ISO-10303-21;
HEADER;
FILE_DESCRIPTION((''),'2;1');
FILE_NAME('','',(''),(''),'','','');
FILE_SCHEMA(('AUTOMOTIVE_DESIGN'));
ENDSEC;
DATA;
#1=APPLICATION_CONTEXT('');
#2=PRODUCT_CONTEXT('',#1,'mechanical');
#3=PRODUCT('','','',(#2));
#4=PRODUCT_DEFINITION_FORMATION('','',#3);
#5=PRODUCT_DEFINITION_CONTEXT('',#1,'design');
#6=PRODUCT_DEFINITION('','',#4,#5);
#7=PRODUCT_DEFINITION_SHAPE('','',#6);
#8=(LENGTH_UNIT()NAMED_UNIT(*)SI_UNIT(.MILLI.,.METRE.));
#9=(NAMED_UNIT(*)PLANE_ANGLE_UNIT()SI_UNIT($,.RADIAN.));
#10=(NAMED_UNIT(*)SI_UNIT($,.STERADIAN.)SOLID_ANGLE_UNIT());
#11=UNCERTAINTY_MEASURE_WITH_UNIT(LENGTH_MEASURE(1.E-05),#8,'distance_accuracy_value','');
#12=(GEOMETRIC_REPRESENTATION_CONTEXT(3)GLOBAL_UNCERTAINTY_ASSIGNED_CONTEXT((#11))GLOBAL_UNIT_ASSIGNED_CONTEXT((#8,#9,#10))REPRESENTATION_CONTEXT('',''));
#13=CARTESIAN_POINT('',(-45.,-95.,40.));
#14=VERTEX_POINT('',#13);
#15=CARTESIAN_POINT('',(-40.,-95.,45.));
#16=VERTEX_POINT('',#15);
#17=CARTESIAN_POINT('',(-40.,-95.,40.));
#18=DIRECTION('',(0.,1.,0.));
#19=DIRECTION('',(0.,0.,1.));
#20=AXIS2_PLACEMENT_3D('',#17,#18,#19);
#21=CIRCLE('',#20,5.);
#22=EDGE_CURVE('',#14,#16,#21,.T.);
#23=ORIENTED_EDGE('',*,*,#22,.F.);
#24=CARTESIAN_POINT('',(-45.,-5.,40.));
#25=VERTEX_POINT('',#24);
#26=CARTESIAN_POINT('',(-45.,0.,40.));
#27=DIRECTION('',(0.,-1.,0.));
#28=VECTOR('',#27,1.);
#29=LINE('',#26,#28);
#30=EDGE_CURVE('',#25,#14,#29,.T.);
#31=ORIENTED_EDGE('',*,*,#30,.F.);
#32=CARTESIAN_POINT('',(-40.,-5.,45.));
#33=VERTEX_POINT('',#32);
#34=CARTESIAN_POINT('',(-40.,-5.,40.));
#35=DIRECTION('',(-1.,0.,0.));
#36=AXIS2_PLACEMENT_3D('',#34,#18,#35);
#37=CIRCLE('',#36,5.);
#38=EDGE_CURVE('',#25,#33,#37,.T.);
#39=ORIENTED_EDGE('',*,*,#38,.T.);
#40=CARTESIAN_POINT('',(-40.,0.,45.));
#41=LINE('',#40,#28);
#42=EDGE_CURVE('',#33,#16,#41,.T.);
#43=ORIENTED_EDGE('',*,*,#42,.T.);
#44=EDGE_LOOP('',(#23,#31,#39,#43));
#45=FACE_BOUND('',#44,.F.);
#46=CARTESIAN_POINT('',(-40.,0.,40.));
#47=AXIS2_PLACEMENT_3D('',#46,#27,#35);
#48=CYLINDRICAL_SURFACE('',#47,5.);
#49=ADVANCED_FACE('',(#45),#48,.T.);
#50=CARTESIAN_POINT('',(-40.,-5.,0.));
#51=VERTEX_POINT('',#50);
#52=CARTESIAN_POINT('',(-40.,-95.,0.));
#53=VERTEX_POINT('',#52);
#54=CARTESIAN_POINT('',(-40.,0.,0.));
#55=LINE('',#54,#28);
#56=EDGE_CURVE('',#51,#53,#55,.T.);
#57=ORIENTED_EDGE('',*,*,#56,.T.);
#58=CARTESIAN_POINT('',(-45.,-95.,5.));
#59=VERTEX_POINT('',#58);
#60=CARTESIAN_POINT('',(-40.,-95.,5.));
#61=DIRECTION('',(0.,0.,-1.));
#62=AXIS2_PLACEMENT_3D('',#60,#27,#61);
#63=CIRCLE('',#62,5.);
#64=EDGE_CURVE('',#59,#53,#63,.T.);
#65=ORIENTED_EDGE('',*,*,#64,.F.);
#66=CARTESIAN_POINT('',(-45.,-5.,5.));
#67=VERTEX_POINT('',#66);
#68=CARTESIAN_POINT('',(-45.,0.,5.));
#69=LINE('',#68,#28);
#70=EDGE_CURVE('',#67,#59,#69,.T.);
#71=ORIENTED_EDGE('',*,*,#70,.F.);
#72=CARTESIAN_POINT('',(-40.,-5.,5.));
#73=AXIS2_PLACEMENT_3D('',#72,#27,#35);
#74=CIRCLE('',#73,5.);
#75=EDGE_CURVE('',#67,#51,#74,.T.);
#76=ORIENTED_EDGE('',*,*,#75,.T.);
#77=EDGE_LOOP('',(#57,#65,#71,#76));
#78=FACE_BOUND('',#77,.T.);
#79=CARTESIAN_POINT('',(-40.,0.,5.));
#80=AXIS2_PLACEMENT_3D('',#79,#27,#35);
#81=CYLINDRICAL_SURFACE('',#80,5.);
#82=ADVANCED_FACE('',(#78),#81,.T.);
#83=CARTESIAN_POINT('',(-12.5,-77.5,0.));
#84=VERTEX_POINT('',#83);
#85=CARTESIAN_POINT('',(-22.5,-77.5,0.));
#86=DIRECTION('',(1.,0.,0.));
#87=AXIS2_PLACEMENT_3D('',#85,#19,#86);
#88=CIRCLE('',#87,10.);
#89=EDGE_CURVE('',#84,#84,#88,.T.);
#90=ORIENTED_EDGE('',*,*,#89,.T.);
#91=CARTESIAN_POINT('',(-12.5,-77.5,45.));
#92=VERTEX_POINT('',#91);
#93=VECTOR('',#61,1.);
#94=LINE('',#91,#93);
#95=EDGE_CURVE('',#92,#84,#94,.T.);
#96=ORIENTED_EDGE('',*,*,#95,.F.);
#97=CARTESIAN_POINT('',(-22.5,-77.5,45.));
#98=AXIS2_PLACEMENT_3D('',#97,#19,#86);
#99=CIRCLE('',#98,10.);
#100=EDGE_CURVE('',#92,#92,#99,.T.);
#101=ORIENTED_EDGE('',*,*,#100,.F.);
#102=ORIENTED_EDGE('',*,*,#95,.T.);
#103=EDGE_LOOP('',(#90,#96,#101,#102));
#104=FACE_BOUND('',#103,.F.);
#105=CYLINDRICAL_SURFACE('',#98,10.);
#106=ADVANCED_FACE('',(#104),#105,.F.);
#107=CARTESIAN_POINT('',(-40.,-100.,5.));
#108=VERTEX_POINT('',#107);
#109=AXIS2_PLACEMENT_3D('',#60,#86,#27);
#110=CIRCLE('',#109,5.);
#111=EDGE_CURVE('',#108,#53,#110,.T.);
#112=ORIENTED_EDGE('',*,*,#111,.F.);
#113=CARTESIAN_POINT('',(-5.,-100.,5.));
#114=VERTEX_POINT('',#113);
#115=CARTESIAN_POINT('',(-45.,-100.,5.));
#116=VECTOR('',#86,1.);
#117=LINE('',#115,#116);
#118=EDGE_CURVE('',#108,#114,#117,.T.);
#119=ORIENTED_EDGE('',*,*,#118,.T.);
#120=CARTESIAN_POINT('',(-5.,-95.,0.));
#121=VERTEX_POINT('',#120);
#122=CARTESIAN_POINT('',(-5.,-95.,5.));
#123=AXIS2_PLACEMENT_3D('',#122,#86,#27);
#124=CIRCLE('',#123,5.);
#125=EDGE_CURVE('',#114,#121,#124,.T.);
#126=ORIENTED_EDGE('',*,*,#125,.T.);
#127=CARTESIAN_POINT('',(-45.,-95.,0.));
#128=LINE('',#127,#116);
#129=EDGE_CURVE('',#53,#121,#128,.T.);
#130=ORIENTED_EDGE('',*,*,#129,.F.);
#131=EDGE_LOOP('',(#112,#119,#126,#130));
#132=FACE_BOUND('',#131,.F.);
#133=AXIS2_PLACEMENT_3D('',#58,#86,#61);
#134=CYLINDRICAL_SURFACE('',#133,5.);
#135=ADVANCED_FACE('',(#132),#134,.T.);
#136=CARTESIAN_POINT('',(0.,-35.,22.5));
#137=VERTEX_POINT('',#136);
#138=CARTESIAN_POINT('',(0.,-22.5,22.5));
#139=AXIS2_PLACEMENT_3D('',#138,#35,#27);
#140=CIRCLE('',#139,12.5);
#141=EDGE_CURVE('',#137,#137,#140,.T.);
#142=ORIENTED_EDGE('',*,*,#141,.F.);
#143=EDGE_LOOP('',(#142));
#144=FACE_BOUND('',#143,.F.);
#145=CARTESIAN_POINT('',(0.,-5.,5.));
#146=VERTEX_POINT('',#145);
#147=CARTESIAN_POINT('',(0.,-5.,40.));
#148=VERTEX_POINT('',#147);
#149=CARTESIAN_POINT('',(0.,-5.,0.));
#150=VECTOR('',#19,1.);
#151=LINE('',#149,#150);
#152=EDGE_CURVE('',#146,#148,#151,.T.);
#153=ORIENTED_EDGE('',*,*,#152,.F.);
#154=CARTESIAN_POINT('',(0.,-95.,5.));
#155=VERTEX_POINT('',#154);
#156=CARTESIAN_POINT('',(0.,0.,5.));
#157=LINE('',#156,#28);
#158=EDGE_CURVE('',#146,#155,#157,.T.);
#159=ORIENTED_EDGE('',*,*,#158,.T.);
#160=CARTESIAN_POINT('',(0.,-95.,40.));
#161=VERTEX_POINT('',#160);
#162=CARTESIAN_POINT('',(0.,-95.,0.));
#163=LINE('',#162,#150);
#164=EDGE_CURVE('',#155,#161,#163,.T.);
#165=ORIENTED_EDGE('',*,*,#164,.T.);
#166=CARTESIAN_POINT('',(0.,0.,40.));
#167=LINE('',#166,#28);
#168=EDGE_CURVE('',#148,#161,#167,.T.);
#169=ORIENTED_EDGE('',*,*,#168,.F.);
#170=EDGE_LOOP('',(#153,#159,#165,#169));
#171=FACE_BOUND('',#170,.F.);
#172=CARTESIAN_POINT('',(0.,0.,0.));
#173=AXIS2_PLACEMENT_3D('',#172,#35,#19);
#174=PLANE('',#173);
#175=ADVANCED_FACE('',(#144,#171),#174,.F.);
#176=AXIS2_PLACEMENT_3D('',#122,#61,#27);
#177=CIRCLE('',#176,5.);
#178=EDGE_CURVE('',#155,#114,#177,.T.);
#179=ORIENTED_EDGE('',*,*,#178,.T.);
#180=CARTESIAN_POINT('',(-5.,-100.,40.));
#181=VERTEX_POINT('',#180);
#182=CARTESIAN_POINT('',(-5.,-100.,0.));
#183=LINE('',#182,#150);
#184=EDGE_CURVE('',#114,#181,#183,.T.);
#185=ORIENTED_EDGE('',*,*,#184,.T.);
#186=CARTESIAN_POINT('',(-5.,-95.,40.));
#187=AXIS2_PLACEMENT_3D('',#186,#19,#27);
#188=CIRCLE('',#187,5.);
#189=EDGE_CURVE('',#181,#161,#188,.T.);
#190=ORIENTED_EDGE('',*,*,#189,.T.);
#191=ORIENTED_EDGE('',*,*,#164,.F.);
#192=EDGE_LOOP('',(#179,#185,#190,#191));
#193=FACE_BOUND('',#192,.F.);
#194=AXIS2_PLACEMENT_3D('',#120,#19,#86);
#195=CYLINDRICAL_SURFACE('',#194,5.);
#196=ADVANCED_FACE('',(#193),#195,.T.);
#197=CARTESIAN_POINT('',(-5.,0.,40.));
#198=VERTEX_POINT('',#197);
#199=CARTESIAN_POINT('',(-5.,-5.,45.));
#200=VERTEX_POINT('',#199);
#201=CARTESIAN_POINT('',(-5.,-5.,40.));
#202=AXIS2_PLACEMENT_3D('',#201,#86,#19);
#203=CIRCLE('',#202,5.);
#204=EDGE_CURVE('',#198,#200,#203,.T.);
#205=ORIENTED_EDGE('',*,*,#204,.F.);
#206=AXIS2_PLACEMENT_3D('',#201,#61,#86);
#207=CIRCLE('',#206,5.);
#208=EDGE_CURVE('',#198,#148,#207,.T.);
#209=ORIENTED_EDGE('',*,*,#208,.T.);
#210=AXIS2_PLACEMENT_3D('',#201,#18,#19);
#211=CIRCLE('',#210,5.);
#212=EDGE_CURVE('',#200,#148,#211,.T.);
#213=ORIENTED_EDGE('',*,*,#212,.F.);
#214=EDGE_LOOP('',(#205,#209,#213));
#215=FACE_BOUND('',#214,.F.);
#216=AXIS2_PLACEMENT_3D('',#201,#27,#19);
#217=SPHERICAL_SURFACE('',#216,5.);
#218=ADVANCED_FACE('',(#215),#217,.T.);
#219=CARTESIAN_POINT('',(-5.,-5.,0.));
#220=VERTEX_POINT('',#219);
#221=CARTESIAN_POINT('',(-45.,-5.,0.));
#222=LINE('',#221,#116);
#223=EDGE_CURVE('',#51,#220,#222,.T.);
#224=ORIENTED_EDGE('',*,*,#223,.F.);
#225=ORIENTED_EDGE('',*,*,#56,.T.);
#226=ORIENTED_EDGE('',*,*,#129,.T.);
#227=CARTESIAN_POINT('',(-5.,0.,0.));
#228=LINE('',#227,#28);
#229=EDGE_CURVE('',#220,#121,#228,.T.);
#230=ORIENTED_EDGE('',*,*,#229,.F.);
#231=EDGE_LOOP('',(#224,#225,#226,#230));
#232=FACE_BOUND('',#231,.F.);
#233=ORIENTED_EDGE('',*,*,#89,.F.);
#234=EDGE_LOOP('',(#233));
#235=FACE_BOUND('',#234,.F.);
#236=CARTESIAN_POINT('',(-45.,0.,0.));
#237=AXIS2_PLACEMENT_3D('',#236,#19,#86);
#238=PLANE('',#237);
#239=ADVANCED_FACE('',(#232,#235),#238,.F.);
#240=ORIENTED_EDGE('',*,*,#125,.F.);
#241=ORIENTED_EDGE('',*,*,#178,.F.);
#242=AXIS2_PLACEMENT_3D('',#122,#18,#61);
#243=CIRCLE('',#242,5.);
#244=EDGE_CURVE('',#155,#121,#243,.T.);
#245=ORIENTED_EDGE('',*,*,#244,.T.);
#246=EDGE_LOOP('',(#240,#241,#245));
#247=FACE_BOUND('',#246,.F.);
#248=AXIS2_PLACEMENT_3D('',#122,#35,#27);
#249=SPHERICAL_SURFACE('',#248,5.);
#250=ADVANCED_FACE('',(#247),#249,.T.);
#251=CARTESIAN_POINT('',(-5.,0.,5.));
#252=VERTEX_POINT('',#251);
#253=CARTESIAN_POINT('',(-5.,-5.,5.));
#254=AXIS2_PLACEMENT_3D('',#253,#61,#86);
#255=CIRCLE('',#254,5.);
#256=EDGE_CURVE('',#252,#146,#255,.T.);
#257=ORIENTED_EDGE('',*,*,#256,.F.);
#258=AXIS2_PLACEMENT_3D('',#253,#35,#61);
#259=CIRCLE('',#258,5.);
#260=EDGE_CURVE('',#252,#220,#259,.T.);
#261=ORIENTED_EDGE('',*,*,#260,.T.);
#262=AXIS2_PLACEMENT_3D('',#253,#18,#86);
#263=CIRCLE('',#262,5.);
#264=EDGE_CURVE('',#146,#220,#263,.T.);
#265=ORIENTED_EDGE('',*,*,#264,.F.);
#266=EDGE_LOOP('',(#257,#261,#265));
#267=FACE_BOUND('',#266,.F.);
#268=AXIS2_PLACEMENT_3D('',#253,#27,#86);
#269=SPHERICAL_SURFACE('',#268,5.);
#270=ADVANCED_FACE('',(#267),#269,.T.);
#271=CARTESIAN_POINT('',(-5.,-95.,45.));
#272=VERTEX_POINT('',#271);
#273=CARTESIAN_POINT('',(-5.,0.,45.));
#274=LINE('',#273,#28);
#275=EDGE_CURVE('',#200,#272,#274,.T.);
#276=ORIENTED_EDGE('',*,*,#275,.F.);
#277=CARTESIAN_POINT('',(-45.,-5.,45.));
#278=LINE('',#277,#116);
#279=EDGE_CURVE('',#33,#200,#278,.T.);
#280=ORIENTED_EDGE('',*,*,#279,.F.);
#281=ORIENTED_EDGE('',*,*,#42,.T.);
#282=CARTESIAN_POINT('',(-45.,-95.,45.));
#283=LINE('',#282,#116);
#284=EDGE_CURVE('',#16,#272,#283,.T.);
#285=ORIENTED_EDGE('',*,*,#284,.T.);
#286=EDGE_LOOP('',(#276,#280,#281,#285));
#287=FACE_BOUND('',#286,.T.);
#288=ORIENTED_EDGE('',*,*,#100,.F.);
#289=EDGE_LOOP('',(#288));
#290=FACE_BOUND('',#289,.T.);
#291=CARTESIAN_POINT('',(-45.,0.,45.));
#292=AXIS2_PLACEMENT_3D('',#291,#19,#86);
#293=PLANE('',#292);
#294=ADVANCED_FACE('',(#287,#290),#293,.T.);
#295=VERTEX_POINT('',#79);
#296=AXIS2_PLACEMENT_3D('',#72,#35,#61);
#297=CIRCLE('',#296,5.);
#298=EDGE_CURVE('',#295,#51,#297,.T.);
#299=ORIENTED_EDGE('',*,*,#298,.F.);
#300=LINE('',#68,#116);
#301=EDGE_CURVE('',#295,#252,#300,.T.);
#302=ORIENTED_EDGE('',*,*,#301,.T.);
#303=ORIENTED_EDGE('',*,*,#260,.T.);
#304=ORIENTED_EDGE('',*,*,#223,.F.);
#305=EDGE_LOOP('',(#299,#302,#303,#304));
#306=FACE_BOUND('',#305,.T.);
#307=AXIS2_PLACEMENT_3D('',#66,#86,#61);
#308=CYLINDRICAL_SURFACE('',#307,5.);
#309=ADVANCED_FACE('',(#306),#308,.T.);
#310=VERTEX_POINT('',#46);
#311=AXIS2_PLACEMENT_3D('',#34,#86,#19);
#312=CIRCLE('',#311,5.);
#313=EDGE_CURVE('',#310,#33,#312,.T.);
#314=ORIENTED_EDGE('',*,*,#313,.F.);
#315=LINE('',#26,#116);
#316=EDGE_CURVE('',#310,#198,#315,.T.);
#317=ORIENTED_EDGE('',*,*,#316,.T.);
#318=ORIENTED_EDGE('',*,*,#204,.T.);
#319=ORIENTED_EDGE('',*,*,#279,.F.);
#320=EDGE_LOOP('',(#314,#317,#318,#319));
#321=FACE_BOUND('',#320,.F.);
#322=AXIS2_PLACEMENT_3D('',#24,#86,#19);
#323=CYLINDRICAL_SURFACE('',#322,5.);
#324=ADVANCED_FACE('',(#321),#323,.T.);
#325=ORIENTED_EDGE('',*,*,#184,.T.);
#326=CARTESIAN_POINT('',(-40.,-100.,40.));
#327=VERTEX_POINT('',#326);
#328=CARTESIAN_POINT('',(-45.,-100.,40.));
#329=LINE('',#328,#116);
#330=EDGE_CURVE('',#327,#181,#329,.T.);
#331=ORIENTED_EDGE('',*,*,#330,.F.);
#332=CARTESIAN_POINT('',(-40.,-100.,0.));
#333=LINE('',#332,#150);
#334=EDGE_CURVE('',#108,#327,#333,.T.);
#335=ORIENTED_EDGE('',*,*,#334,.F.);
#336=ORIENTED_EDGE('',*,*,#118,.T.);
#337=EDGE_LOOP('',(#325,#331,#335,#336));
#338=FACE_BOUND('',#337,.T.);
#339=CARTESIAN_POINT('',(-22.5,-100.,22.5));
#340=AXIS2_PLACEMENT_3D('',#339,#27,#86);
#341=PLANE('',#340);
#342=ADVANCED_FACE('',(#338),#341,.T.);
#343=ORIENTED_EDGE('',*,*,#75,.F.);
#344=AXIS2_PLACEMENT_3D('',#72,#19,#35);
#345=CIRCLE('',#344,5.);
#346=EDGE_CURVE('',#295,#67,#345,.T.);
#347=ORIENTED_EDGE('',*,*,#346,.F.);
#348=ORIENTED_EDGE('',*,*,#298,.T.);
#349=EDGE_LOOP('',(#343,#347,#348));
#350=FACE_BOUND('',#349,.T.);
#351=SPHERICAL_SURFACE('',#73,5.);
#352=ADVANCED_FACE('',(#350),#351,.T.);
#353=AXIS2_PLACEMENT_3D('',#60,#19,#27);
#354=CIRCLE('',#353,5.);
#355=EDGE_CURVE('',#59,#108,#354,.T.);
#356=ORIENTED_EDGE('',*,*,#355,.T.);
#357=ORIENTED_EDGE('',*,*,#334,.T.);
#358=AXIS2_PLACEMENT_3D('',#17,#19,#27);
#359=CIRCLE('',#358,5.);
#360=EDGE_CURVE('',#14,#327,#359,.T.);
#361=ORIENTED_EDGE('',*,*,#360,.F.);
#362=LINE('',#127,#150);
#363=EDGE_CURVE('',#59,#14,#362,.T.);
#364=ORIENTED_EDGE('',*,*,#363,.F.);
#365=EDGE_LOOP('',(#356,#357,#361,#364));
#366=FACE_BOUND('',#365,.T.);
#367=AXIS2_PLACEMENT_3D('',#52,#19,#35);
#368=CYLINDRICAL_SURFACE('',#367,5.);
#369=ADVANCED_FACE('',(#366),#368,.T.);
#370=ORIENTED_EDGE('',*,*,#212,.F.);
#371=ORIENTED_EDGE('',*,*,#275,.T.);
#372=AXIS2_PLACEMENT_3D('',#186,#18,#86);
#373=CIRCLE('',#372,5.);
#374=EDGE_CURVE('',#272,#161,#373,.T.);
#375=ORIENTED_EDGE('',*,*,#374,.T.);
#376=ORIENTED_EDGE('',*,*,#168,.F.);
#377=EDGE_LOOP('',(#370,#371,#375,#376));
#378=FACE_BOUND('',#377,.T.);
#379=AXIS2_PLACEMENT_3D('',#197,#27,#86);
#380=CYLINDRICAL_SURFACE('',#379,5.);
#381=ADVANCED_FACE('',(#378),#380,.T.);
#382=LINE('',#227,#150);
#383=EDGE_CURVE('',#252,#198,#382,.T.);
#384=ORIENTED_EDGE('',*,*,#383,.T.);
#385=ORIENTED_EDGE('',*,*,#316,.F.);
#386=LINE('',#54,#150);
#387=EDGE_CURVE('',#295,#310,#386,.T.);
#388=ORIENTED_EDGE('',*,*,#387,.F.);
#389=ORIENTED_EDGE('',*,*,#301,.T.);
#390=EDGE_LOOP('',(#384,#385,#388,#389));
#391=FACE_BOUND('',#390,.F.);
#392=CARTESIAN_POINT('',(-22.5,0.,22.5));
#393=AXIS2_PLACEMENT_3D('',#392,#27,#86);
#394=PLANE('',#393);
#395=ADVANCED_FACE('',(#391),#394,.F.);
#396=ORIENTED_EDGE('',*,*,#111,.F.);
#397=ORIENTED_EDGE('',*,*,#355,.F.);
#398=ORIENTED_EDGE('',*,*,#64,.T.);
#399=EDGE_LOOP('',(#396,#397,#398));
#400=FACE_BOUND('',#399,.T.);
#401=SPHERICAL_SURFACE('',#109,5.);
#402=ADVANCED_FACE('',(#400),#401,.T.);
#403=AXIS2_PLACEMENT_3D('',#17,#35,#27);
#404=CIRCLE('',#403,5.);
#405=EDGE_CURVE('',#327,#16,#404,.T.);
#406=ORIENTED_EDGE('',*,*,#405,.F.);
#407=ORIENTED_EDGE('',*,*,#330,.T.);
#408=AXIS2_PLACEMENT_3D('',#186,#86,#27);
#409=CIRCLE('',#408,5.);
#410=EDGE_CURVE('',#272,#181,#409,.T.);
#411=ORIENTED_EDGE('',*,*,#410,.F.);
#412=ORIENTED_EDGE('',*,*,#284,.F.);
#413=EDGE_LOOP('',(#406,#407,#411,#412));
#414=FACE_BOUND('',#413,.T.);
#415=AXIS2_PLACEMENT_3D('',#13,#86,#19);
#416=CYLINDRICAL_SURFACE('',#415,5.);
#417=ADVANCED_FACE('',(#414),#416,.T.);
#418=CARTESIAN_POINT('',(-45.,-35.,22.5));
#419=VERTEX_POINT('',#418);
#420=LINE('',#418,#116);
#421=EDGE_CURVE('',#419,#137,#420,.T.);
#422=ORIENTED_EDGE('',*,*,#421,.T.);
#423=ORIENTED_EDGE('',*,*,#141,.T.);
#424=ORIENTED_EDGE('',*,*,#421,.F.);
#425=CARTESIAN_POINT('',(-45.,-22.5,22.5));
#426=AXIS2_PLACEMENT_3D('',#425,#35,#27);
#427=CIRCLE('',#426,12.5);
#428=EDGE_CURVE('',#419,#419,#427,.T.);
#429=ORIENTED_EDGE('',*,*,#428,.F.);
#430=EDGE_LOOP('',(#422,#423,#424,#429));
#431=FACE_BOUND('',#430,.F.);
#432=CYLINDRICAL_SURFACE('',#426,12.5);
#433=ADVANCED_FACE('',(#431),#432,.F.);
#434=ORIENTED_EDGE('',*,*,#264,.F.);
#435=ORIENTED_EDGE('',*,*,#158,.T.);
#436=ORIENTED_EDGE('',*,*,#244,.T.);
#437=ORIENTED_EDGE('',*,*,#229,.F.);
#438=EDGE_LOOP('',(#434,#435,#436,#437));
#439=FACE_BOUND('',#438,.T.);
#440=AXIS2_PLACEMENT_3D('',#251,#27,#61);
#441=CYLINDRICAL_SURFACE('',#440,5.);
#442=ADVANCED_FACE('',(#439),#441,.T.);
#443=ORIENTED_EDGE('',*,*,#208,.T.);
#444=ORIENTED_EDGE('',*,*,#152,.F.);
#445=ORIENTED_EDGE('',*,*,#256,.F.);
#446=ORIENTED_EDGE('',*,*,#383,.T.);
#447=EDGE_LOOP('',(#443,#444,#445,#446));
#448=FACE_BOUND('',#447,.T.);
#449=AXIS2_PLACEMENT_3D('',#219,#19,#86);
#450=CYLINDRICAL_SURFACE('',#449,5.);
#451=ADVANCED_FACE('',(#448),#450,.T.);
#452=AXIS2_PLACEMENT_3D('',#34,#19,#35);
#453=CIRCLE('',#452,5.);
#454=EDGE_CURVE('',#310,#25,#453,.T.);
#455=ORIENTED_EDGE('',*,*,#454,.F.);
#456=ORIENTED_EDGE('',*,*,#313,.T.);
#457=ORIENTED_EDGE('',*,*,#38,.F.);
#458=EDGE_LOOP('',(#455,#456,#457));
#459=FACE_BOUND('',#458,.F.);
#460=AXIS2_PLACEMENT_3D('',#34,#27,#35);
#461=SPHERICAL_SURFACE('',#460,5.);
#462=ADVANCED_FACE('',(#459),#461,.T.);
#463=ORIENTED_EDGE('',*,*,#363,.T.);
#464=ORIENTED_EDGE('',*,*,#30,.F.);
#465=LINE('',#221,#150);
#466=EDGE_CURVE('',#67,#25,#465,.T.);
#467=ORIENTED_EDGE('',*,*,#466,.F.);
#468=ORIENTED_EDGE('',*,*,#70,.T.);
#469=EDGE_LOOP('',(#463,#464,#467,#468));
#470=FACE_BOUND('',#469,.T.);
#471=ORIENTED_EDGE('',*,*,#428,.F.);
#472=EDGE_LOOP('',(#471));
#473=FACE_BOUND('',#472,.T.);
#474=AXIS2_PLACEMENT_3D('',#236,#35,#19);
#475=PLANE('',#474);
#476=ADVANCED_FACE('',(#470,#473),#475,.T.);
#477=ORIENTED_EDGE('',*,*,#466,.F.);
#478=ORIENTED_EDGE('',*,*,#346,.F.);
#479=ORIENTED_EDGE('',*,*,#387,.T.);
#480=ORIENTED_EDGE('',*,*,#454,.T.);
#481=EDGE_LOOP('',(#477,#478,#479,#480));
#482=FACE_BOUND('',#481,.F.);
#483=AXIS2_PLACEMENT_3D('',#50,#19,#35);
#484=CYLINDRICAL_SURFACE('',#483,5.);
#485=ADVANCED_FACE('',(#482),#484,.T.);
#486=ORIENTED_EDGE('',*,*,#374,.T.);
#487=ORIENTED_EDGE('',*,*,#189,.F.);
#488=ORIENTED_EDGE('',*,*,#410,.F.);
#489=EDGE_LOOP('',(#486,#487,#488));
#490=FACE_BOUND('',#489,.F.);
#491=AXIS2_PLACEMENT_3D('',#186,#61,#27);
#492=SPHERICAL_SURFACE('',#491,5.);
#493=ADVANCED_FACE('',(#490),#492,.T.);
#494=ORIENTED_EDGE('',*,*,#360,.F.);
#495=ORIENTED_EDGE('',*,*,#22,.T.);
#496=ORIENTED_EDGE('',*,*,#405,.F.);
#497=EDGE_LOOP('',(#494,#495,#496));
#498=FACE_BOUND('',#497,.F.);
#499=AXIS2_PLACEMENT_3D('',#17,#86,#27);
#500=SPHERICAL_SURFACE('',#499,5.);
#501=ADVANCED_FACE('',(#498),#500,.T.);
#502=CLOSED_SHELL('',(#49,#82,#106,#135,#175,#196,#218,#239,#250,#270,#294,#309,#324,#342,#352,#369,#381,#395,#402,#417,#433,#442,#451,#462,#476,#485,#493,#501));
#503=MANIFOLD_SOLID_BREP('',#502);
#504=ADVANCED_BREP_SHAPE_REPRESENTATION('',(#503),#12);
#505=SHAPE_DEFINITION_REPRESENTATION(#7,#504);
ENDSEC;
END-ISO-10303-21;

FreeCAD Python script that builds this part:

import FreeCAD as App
import Part
import Sketcher
from FreeCAD import Vector
Q = App.Units.Quantity

doc = App.newDocument("Part")
body = doc.addObject("PartDesign::Body", "Body")

# Sketch on XZ plane
sketch1 = body.newObject("Sketcher::SketchObject", "Sketch")
sketch1.AttachmentSupport = (doc.getObject("XZ_Plane"), [""])
sketch1.MapMode = "FlatFace"
sketch1.addGeometry(Part.LineSegment(Vector(-45, 45, 0), Vector(-45, 0, 0)), False)
sketch1.addGeometry(Part.LineSegment(Vector(-45, 0, 0), Vector(0, 0, 0)), False)
sketch1.addGeometry(Part.LineSegment(Vector(0, 0, 0), Vector(0, 45, 0)), False)
sketch1.addGeometry(Part.LineSegment(Vector(0, 45, 0), Vector(-45, 45, 0)), False)
sketch1.addConstraint(Sketcher.Constraint("Coincident", 0, 2, 1, 1))
sketch1.addConstraint(Sketcher.Constraint("Coincident", 1, 2, 2, 1))
sketch1.addConstraint(Sketcher.Constraint("Coincident", 2, 2, 3, 1))
sketch1.addConstraint(Sketcher.Constraint("Coincident", 3, 2, 0, 1))
sketch1.addConstraint(Sketcher.Constraint("Vertical", 0))
sketch1.addConstraint(Sketcher.Constraint("Horizontal", 1))
sketch1.addConstraint(Sketcher.Constraint("Vertical", 2))
sketch1.addConstraint(Sketcher.Constraint("Horizontal", 3))
sketch1.addConstraint(Sketcher.Constraint("Coincident", 1, 2, -1, 1))
sketch1.addConstraint(Sketcher.Constraint("Equal", 3, 0))
sketch1.addConstraint(Sketcher.Constraint("DistanceX", 1, 1, 1, 2, Q("45 mm")))
pad1 = body.newObject("PartDesign::Pad", "Pad")
pad1.Profile = sketch1
pad1.Length = 100
doc.recompute()

fillet = body.newObject("PartDesign::Fillet", "Fillet")
fillet.Base = (pad1, ["Edge1"])
fillet.UseAllEdges = True
fillet.Radius = 5

# Sketch on XY plane
sketch2 = body.newObject("Sketcher::SketchObject", "Sketch001")
sketch2.AttachmentSupport = (doc.getObject("XY_Plane"), [""])
sketch2.MapMode = "FlatFace"
sketch2.AttachmentOffset = App.Placement(Vector(0, 0, 45), App.Rotation())
sketch2.addGeometry(Part.Circle(Vector(-22, -78, 0), Vector(0, 0, 1), 10), False)
sketch2.addConstraint(Sketcher.Constraint("Diameter", 0, Q("20 mm")))
sketch2.addConstraint(Sketcher.Constraint("DistanceX", 0, 3, -1, 1, Q("22.5 mm")))
sketch2.addConstraint(Sketcher.Constraint("DistanceY", 0, 3, -1, 1, Q("77.5 mm")))
pocket1 = body.newObject("PartDesign::Pocket", "Pocket")
pocket1.Profile = sketch2
pocket1.Length = 45

# Sketch on YZ plane
sketch3 = body.newObject("Sketcher::SketchObject", "Sketch002")
sketch3.AttachmentSupport = (doc.getObject("YZ_Plane"), [""])
sketch3.MapMode = "FlatFace"
sketch3.AttachmentOffset = App.Placement(Vector(0, 0, -45), App.Rotation())
sketch3.addGeometry(Part.Circle(Vector(-22, 22, 0), Vector(0, 0, 1), 12), False)
sketch3.addConstraint(Sketcher.Constraint("Diameter", 0, Q("25 mm")))
sketch3.addConstraint(Sketcher.Constraint("DistanceX", 0, 3, -1, 1, Q("22.5 mm")))
sketch3.addConstraint(Sketcher.Constraint("DistanceY", -1, 1, 0, 3, Q("22.5 mm")))
pocket2 = body.newObject("PartDesign::Pocket", "Pocket001")
pocket2.Profile = sketch3
pocket2.Length = 45
pocket2.Reversed = True

doc.recompute()
